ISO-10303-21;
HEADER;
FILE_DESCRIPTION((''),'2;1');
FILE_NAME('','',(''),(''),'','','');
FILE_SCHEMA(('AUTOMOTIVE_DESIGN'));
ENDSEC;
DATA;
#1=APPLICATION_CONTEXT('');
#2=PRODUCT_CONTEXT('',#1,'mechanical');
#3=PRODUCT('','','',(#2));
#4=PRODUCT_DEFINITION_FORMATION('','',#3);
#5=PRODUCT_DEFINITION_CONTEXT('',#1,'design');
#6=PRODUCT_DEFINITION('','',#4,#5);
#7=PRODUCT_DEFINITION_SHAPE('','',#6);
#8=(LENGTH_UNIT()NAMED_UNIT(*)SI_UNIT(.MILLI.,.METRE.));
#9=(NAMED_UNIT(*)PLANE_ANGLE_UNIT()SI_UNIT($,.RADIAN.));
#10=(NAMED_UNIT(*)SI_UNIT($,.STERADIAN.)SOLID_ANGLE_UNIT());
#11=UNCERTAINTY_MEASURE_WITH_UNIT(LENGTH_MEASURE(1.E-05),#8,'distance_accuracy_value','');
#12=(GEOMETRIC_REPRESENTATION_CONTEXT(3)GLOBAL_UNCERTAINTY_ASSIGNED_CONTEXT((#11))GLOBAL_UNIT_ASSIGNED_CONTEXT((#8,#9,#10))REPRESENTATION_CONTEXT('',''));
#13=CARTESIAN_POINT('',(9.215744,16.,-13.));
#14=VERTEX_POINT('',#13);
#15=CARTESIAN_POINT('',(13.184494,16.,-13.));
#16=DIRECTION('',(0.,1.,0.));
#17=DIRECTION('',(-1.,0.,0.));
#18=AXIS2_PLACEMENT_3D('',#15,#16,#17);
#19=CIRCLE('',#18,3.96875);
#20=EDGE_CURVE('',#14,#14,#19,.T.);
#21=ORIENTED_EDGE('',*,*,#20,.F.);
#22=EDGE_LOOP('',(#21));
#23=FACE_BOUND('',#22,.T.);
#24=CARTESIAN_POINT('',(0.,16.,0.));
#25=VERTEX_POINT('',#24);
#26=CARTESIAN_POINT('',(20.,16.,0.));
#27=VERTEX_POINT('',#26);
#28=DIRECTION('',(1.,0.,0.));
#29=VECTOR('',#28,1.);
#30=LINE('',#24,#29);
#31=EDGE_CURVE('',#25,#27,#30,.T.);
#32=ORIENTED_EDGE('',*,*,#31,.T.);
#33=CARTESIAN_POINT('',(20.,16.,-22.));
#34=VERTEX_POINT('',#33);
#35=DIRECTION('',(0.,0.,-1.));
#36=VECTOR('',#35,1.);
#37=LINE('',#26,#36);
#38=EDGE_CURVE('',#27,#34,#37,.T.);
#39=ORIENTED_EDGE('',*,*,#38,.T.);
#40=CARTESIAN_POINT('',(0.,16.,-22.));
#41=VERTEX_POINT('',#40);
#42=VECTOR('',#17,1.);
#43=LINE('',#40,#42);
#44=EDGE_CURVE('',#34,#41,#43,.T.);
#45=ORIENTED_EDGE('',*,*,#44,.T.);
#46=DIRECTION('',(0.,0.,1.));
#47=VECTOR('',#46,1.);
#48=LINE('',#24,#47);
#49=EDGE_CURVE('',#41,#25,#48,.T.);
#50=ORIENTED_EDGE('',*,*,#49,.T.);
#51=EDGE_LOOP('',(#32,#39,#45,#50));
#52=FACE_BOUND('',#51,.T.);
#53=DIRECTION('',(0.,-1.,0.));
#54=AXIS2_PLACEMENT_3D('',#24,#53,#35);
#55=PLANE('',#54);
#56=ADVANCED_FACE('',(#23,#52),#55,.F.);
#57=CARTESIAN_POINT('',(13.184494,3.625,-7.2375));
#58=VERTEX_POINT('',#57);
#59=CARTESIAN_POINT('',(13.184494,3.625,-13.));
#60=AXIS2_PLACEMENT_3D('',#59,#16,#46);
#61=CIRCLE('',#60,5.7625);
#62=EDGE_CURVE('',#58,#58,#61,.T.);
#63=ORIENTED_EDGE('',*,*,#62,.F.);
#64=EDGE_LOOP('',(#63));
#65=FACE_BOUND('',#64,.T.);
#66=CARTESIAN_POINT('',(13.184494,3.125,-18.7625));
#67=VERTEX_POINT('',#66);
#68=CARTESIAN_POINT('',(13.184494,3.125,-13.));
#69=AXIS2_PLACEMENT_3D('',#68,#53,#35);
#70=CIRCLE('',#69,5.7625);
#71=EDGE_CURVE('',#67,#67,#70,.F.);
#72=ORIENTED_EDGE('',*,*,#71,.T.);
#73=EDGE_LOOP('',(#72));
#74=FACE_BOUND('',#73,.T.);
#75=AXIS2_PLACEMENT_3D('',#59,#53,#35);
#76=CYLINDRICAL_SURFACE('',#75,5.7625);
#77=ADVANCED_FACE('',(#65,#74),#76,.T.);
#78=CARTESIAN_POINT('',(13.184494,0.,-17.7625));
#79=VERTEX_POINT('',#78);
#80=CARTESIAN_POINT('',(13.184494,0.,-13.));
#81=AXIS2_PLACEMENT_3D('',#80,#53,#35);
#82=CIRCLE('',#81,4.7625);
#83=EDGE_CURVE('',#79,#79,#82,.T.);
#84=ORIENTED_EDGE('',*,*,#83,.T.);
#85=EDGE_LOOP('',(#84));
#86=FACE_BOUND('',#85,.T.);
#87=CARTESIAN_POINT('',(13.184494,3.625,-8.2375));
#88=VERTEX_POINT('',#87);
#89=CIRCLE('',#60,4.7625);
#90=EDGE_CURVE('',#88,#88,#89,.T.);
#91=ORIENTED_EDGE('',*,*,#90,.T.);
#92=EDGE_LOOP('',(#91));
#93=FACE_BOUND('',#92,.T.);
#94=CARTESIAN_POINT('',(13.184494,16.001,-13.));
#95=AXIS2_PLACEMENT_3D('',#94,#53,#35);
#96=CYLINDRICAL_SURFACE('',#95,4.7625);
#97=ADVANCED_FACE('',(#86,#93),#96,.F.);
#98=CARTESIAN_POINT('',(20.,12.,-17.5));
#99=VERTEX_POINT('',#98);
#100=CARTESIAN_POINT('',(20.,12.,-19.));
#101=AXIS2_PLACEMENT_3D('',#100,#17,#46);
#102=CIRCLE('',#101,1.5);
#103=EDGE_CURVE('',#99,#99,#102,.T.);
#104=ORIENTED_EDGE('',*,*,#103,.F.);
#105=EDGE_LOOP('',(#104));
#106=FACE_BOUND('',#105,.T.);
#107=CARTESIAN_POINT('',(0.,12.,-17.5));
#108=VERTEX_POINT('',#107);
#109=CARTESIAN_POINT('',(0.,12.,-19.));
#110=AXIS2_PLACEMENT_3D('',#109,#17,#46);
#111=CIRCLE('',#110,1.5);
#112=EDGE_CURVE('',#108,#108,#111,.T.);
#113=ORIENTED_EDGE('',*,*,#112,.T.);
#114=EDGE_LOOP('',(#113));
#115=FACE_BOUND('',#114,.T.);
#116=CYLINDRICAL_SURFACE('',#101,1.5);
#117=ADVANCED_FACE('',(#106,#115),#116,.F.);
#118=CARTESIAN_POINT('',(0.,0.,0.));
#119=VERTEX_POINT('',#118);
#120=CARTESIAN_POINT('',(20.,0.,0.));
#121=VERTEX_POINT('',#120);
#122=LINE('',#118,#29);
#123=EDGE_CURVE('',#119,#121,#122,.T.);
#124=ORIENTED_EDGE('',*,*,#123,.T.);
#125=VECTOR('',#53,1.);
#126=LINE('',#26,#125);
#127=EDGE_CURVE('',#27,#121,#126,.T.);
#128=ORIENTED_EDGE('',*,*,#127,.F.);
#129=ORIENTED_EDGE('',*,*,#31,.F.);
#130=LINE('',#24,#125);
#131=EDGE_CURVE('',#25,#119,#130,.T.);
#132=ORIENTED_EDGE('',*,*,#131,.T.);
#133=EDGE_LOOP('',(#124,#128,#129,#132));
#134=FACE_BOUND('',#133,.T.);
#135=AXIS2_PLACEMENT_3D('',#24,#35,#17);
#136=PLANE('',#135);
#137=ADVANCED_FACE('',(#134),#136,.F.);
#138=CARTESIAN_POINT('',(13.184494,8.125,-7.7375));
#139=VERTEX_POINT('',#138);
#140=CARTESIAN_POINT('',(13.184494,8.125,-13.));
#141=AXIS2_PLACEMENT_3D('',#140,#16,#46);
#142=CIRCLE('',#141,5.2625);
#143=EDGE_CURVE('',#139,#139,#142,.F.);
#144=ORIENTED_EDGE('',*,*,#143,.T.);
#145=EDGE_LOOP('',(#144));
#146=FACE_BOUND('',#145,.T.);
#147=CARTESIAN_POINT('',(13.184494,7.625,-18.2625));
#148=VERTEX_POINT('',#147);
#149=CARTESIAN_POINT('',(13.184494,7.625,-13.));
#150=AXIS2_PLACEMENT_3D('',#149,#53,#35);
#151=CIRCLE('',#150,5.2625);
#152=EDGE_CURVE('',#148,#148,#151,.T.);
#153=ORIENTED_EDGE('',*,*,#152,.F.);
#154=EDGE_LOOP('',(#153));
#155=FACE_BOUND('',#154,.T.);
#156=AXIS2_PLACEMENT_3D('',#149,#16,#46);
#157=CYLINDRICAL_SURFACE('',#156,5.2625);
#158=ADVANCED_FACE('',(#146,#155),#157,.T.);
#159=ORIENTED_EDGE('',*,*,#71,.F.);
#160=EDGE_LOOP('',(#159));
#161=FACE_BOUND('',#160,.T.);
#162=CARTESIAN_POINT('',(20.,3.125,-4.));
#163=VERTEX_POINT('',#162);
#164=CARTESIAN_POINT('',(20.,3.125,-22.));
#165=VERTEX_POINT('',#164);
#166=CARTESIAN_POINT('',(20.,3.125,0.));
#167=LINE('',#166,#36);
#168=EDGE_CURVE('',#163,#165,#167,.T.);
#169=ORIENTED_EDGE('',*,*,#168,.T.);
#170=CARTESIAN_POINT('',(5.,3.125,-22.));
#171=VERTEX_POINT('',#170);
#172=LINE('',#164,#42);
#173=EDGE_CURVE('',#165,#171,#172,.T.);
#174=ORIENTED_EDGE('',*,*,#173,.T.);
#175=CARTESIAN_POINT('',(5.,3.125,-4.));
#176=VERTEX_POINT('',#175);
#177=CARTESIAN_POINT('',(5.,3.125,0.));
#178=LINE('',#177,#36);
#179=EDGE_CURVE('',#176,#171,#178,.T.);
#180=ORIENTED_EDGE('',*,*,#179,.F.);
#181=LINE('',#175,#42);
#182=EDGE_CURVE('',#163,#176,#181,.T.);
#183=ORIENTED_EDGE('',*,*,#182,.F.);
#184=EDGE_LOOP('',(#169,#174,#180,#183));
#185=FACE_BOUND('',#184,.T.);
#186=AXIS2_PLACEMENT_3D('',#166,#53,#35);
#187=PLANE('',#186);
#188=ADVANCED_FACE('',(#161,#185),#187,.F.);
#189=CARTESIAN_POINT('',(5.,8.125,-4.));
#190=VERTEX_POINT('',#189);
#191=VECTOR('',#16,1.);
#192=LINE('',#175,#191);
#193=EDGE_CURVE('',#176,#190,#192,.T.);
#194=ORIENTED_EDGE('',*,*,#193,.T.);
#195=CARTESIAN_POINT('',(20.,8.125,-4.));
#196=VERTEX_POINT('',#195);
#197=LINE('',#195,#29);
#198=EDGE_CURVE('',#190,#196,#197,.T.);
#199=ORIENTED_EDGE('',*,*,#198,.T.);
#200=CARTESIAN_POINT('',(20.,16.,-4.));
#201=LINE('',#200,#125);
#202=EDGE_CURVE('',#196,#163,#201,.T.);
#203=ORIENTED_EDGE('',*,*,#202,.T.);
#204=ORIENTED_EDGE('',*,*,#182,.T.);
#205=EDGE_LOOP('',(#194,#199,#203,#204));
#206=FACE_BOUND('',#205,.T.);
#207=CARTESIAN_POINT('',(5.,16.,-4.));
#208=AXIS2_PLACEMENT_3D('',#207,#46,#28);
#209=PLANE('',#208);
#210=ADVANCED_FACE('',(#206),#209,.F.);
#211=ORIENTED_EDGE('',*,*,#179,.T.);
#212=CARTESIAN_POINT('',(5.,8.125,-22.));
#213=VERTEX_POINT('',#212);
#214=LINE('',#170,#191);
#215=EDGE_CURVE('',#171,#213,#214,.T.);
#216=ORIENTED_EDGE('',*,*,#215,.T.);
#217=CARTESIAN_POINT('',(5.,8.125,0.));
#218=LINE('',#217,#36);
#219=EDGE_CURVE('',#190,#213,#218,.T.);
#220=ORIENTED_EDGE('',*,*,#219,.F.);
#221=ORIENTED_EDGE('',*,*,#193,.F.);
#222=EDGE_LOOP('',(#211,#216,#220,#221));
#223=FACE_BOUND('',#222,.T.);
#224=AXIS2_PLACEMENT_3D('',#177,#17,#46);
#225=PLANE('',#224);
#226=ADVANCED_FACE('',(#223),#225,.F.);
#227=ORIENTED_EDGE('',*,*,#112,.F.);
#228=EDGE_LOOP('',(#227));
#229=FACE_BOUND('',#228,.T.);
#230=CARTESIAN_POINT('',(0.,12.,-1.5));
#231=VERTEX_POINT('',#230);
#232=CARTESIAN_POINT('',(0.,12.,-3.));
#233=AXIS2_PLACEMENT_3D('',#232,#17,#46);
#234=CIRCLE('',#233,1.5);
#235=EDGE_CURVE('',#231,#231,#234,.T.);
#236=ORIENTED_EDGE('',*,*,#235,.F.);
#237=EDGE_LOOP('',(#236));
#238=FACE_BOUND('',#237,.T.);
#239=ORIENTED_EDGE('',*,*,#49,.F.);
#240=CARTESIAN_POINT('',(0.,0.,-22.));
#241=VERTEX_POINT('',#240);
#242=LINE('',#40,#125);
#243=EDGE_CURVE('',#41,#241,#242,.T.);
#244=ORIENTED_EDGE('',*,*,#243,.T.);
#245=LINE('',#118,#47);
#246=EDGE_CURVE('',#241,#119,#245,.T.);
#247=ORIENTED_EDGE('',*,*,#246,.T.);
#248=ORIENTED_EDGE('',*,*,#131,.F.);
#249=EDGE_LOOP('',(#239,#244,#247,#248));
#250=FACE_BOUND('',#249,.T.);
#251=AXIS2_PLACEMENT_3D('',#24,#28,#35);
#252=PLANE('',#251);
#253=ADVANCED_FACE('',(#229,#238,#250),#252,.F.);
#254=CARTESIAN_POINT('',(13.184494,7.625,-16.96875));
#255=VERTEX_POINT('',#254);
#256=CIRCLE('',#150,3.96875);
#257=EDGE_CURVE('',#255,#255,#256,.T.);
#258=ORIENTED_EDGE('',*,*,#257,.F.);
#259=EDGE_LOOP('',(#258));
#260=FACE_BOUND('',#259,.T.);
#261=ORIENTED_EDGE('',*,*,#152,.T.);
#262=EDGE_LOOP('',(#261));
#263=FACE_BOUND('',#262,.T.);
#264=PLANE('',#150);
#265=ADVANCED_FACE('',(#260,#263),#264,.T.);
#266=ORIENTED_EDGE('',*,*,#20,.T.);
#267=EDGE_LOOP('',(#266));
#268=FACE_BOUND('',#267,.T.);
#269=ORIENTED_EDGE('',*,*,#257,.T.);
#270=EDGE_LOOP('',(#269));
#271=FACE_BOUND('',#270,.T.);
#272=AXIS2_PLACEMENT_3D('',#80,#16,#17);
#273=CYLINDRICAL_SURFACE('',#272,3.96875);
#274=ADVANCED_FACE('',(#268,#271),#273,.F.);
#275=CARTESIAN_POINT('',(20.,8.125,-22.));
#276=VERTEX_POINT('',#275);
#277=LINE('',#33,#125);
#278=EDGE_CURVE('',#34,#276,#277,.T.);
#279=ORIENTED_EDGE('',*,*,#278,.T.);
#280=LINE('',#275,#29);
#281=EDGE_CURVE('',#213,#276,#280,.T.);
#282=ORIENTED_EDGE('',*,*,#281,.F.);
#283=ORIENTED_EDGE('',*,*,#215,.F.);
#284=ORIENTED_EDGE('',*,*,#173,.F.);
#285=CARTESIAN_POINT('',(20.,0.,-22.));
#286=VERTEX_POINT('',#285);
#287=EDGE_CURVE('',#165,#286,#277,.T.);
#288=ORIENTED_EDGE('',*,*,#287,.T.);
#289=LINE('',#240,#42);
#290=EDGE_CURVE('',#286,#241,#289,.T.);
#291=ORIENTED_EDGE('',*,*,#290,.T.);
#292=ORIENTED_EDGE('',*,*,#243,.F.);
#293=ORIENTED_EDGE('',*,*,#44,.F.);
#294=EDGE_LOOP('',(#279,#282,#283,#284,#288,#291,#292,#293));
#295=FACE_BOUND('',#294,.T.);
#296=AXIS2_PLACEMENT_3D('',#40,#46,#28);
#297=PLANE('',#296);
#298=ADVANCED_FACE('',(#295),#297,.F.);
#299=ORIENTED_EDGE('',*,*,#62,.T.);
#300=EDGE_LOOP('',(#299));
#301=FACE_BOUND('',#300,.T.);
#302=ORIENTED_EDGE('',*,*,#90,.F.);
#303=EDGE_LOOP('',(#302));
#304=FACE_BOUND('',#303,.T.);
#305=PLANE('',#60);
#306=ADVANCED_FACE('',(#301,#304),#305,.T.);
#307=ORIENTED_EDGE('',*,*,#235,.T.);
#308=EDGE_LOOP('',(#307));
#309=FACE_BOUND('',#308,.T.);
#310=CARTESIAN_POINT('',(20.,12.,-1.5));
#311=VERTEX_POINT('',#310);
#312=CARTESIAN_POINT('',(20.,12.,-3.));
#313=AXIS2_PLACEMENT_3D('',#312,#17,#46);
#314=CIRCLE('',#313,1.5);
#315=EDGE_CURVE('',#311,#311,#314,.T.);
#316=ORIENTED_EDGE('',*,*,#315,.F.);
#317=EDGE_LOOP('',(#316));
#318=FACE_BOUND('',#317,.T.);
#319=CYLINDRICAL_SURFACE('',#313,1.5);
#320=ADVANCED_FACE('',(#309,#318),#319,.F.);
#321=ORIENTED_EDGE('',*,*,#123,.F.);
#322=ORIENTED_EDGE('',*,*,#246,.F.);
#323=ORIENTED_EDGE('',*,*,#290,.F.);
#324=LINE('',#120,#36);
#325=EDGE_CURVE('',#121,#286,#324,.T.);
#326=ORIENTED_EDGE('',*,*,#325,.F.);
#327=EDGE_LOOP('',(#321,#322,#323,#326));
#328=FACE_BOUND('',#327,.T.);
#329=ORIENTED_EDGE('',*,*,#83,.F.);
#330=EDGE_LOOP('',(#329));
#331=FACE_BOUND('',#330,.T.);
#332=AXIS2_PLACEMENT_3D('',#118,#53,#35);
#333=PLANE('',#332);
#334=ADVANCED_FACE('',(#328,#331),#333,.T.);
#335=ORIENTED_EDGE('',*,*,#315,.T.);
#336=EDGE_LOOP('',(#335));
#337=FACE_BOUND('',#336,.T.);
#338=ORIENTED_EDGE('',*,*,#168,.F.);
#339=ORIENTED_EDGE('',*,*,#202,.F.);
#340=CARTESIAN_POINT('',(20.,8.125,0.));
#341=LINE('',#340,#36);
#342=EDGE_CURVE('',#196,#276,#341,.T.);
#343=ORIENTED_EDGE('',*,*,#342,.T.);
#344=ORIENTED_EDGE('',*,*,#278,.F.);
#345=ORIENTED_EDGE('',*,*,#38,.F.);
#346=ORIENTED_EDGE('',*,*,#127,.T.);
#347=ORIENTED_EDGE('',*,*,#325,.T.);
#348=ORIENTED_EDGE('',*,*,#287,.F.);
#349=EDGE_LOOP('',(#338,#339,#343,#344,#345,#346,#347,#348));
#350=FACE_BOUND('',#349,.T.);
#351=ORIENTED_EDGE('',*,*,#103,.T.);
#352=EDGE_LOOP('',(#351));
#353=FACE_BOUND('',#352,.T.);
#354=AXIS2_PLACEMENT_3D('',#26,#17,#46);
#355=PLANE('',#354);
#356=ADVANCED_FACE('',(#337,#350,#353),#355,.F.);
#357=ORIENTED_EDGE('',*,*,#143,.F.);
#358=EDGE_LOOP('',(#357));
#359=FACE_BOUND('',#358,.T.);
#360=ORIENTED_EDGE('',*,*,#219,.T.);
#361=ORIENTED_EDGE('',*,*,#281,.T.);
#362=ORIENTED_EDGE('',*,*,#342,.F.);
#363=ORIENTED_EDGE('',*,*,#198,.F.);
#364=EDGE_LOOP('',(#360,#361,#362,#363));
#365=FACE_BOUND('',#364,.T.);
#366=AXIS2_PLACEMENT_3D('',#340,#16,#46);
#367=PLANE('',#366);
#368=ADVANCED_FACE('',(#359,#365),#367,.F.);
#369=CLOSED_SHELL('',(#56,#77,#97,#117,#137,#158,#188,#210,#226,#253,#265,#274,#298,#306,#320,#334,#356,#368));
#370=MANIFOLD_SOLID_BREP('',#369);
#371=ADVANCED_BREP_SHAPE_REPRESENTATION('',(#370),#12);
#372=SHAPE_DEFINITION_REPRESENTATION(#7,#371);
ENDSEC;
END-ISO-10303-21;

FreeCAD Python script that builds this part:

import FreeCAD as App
import Part
import Sketcher
from FreeCAD import Vector


def add_polygon(sketch, points):
    """Adds a closed chain of lines whose ends are joined by coincident constraints."""
    first, n = sketch.GeometryCount, len(points)
    for a, b in zip(points, points[1:] + points[:1]):
        sketch.addGeometry(Part.LineSegment(App.Vector(*a, 0), App.Vector(*b, 0)), False)
    for i in range(n):
        sketch.addConstraint(Sketcher.Constraint("Coincident", first + i, 2, first + (i + 1) % n, 1))

doc = App.newDocument("Part")
body = doc.addObject("PartDesign::Body", "Body")

# Sketch on XZ plane
sketch1 = doc.addObject("Sketcher::SketchObject", "Sketch")
body.addObject(sketch1)
sketch1.AttachmentSupport = (doc.XZ_Plane, [""])
sketch1.MapMode = "FlatFace"
add_polygon(sketch1, [(0, -22), (0, 0), (20, 0), (20, -22)])  # lines 0-3
sketch1.addConstraint(Sketcher.Constraint("Vertical", 0))
sketch1.addConstraint(Sketcher.Constraint("Horizontal", 1))
sketch1.addConstraint(Sketcher.Constraint("Vertical", 2))
sketch1.addConstraint(Sketcher.Constraint("Horizontal", 3))
sketch1.addConstraint(Sketcher.Constraint("Coincident", 0, 2, -1, 1))
sketch1.addConstraint(Sketcher.Constraint("DistanceX", 1, 1, 1, 2, 20.0))
sketch1.addConstraint(Sketcher.Constraint("DistanceY", 0, 1, 0, 2, 22.0))
pad1 = doc.addObject("PartDesign::Pad", "Pad")
body.addObject(pad1)
pad1.Profile = sketch1
pad1.Length = 16
pad1.Reversed = True

# Sketch on XY plane
sketch2 = doc.addObject("Sketcher::SketchObject", "Sketch001")
body.addObject(sketch2)
sketch2.AttachmentSupport = (doc.XY_Plane, [""])
sketch2.MapMode = "FlatFace"
sketch2.AttachmentOffset = App.Placement(Vector(0, 0, -22), App.Rotation())
add_polygon(sketch2, [(20, 8), (20, 3), (5, 3), (5, 8)])  # lines 0-3
sketch2.addConstraint(Sketcher.Constraint("Vertical", 0))
sketch2.addConstraint(Sketcher.Constraint("Horizontal", 1))
sketch2.addConstraint(Sketcher.Constraint("Vertical", 2))
sketch2.addConstraint(Sketcher.Constraint("Horizontal", 3))
sketch2.addConstraint(Sketcher.Constraint("DistanceX", 1, 2, 1, 1, 15.0))
sketch2.addConstraint(Sketcher.Constraint("DistanceY", 0, 2, 0, 1, 5.0))
sketch2.addConstraint(Sketcher.Constraint("DistanceX", -1, 1, 0, 2, 20.0))
sketch2.addConstraint(Sketcher.Constraint("DistanceY", -1, 1, 0, 2, 3.125))
pocket1 = doc.addObject("PartDesign::Pocket", "Pocket")
body.addObject(pocket1)
pocket1.Profile = sketch2
pocket1.Type = "ThroughAll"
pocket1.Reversed = True

# Sketch on XZ plane
sketch3 = doc.addObject("Sketcher::SketchObject", "Sketch002")
body.addObject(sketch3)
sketch3.AttachmentSupport = (doc.XZ_Plane, [""])
sketch3.MapMode = "FlatFace"
sketch3.AttachmentOffset = App.Placement(Vector(0, 0, -3.125), App.Rotation())
sketch3.addGeometry(Part.Circle(Vector(13.2, -13, 0), Vector(0, 0, 1), 4), False)
sketch3.addConstraint(Sketcher.Constraint("DistanceY", 0, 3, -1, 1, 13.0))
sketch3.addConstraint(Sketcher.Constraint("Diameter", 0, 7.9375))
sketch3.addConstraint(Sketcher.Constraint("DistanceX", -1, 1, 0, 3, 13.184494))
pocket2 = doc.addObject("PartDesign::Pocket", "Pocket001")
body.addObject(pocket2)
pocket2.Profile = sketch3
pocket2.Type = "ThroughAll"
pocket2.Midplane = True

# Sketch on XZ plane
sketch4 = doc.addObject("Sketcher::SketchObject", "Sketch003")
body.addObject(sketch4)
sketch4.AttachmentSupport = (doc.XZ_Plane, [""])
sketch4.MapMode = "FlatFace"
sketch4.addGeometry(Part.Circle(Vector(13.2, -13, 0), Vector(0, 0, 1), 4.8), False)
sketch4.addConstraint(Sketcher.Constraint("Diameter", 0, 9.525))
sketch4.addConstraint(Sketcher.Constraint("DistanceY", 0, 3, -1, 1, 13.0))
sketch4.addConstraint(Sketcher.Constraint("DistanceX", -1, 1, 0, 3, 13.184494))
pocket3 = doc.addObject("PartDesign::Pocket", "Pocket002")
body.addObject(pocket3)
pocket3.Profile = sketch4
pocket3.Length = 3.125

# Sketch on XZ plane
sketch5 = doc.addObject("Sketcher::SketchObject", "Sketch004")
body.addObject(sketch5)
sketch5.AttachmentSupport = (doc.XZ_Plane, [""])
sketch5.MapMode = "FlatFace"
sketch5.AttachmentOffset = App.Placement(Vector(0, 0, -3.125), App.Rotation())
sketch5.addGeometry(Part.Circle(Vector(13.2, -13, 0), Vector(0, 0, 1), 5.8), False)
sketch5.addGeometry(Part.Circle(Vector(13.2, -13, 0), Vector(0, 0, 1), 4.8), False)
sketch5.addConstraint(Sketcher.Constraint("Coincident", 1, 3, 0, 3))
sketch5.addConstraint(Sketcher.Constraint("Diameter", 0, 11.525))
sketch5.addConstraint(Sketcher.Constraint("Diameter", 1, 9.525))
sketch5.addConstraint(Sketcher.Constraint("DistanceY", 0, 3, -1, 1, 13.0))
sketch5.addConstraint(Sketcher.Constraint("DistanceX", -1, 1, 0, 3, 13.184494))
pad2 = doc.addObject("PartDesign::Pad", "Pad001")
body.addObject(pad2)
pad2.Profile = sketch5
pad2.Length = 0.5
pad2.Reversed = True

# Sketch on XZ plane
sketch6 = doc.addObject("Sketcher::SketchObject", "Sketch005")
body.addObject(sketch6)
sketch6.AttachmentSupport = (doc.XZ_Plane, [""])
sketch6.MapMode = "FlatFace"
sketch6.AttachmentOffset = App.Placement(Vector(0, 0, -8.125), App.Rotation())
sketch6.addGeometry(Part.Circle(Vector(13.2, -13, 0), Vector(0, 0, 1), 5.3), False)
sketch6.addGeometry(Part.Circle(Vector(13.2, -13, 0), Vector(0, 0, 1), 4), False)
sketch6.addConstraint(Sketcher.Constraint("Coincident", 1, 3, 0, 3))
sketch6.addConstraint(Sketcher.Constraint("Diameter", 0, 10.525))
sketch6.addConstraint(Sketcher.Constraint("DistanceY", 0, 3, -1, 1, 13.0))
sketch6.addConstraint(Sketcher.Constraint("Diameter", 1, 7.9375))
sketch6.addConstraint(Sketcher.Constraint("DistanceX", -1, 1, 0, 3, 13.184494))
pad3 = doc.addObject("PartDesign::Pad", "Pad002")
body.addObject(pad3)
pad3.Profile = sketch6
pad3.Length = 0.5

# Sketch on XZ plane
sketch7 = doc.addObject("Sketcher::SketchObject", "Sketch006")
body.addObject(sketch7)
sketch7.AttachmentSupport = (doc.XZ_Plane, [""])
sketch7.MapMode = "FlatFace"
sketch7.AttachmentOffset = App.Placement(Vector(0, 0, -3.125), App.Rotation())
add_polygon(sketch7, [(5, -4), (5, 0), (20, 0), (20, -4)])  # lines 0-3
sketch7.addConstraint(Sketcher.Constraint("Vertical", 0))
sketch7.addConstraint(Sketcher.Constraint("Horizontal", 1))
sketch7.addConstraint(Sketcher.Constraint("Vertical", 2))
sketch7.addConstraint(Sketcher.Constraint("Horizontal", 3))
sketch7.addConstraint(Sketcher.Constraint("PointOnObject", 0, 2, -1))
sketch7.addConstraint(Sketcher.Constraint("DistanceX", 1, 1, 1, 2, 15.0))
sketch7.addConstraint(Sketcher.Constraint("DistanceY", 0, 1, 0, 2, 4.0))
sketch7.addConstraint(Sketcher.Constraint("DistanceX", -1, 1, 0, 2, 5.0))
pad4 = doc.addObject("PartDesign::Pad", "Pad003")
body.addObject(pad4)
pad4.Profile = sketch7
pad4.Type = "UpToFirst"
pad4.Reversed = True

# Sketch on YZ plane
sketch8 = doc.addObject("Sketcher::SketchObject", "Sketch007")
body.addObject(sketch8)
sketch8.AttachmentSupport = (doc.YZ_Plane, [""])
sketch8.MapMode = "FlatFace"
sketch8.addGeometry(Part.Circle(Vector(12, -3, 0), Vector(0, 0, 1), 1.5), False)
sketch8.addGeometry(Part.Circle(Vector(12, -19, 0), Vector(0, 0, 1), 1.5), False)
sketch8.addConstraint(Sketcher.Constraint("Equal", 0, 1))
sketch8.addConstraint(Sketcher.Constraint("Vertical", 0, 3, 1, 3))
sketch8.addConstraint(Sketcher.Constraint("Diameter", 0, 3.0))
sketch8.addConstraint(Sketcher.Constraint("DistanceX", -1, 1, 0, 3, 12.0))
sketch8.addConstraint(Sketcher.Constraint("DistanceY", 0, 3, -1, 1, 3.0))
sketch8.addConstraint(Sketcher.Constraint("DistanceY", 1, 3, -1, 1, 19.0))
pocket4 = doc.addObject("PartDesign::Pocket", "Pocket003")
body.addObject(pocket4)
pocket4.Profile = sketch8
pocket4.Type = "ThroughAll"
pocket4.Reversed = True

doc.recompute()
